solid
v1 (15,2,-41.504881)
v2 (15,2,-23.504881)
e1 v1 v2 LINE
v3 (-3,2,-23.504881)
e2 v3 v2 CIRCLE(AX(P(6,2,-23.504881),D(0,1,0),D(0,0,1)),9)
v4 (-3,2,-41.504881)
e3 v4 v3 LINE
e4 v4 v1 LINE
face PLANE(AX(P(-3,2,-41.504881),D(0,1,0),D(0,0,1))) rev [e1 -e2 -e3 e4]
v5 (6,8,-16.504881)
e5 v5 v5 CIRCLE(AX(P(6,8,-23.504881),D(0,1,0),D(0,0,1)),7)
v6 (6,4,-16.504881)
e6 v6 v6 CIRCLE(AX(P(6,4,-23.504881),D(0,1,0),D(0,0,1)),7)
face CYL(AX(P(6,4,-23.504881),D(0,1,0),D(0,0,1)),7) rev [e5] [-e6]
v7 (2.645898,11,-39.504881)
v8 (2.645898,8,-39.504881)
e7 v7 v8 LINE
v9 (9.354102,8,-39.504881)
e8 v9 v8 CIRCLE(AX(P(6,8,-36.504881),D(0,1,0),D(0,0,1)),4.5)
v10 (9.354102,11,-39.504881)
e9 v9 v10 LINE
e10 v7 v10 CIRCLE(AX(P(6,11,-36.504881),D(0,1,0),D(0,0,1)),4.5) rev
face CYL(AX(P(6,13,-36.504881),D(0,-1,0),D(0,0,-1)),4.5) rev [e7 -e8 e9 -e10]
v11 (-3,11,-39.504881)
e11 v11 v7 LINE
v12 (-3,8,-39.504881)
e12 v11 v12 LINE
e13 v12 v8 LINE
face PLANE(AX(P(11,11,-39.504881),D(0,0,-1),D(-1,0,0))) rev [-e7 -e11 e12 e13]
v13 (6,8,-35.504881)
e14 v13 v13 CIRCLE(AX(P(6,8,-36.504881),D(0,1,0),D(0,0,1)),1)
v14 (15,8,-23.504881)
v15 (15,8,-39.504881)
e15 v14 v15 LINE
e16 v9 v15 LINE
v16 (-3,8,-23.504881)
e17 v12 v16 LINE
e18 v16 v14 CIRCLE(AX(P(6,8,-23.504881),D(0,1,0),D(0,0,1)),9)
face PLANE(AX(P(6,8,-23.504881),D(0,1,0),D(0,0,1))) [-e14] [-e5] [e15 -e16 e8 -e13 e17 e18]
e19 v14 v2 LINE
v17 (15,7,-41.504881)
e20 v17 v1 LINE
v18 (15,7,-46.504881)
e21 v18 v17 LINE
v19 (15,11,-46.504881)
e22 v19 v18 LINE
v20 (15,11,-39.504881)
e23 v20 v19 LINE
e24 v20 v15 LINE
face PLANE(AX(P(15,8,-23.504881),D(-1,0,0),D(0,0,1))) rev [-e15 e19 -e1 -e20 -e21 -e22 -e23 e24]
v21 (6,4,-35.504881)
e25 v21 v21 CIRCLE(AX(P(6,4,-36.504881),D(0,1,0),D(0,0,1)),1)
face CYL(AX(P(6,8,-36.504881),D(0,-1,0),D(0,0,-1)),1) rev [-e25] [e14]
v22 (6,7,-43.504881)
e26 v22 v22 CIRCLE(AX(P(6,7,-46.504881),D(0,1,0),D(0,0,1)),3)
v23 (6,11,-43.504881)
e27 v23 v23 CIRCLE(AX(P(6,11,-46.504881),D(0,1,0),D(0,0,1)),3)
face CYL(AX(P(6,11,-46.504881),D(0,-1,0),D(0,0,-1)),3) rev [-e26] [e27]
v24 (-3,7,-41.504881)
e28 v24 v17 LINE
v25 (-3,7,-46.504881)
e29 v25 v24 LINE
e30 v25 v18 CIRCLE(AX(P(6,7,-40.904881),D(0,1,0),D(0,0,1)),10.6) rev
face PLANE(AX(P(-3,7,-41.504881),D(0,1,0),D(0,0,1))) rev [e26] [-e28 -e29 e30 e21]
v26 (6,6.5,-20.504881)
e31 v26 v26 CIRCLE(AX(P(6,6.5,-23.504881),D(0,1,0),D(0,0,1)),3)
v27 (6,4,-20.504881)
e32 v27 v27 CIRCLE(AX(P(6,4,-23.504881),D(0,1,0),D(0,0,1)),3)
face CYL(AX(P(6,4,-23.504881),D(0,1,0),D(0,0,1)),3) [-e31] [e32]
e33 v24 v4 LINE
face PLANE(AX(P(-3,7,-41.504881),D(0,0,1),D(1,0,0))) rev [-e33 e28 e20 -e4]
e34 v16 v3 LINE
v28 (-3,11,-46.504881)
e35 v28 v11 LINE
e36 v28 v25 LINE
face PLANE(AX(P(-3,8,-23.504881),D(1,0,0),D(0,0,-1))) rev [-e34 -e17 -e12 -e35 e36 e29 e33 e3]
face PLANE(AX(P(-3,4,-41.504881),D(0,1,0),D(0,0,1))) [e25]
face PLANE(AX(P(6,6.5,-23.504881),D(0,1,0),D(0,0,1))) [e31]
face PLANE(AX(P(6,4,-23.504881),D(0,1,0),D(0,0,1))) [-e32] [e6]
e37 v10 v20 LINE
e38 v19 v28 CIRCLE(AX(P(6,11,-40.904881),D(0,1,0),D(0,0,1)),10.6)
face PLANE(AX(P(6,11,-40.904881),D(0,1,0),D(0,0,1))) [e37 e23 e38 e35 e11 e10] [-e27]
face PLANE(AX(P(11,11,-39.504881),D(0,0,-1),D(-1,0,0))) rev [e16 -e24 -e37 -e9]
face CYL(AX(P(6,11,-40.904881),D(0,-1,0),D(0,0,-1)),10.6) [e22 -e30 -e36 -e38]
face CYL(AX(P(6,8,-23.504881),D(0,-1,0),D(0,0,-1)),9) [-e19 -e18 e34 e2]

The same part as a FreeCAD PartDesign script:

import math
import FreeCAD as App
import Part
import Sketcher

V = App.Vector
Q = App.Units.Quantity

doc = App.newDocument("Part")
body = doc.addObject("PartDesign::Body", "Body")

# Sketch on XZ plane
sketch1 = body.newObject("Sketcher::SketchObject", "Sketch")
sketch1.AttachmentSupport = (doc.getObject("XZ_Plane"), [""])
sketch1.MapMode = "FlatFace"
sketch1.addGeometry([
    Part.LineSegment(V(15, -53.5, 0), V(-3, -53.5, 0)),  # 0
    Part.LineSegment(V(-3, -53.5, 0), V(-3, -23.5, 0)),  # 1
    Part.ArcOfCircle(Part.Circle(V(6, -23.5, 0), V(0, 0, 1), 9), math.radians(0), math.radians(180)),  # 2
    Part.LineSegment(V(15, -23.5, 0), V(15, -53.5, 0)),  # 3
    Part.Circle(V(6, -36.5, 0), V(0, 0, 1), 1),  # 4
    Part.Circle(V(6, -46.5, 0), V(0, 0, 1), 1),  # 5
], False)
sketch1.addConstraint([
    Sketcher.Constraint("Coincident", 0, 2, 1, 1),
    Sketcher.Constraint("Tangent", 1, 2, 2, 2),
    Sketcher.Constraint("Tangent", 2, 1, 3, 1),
    Sketcher.Constraint("Coincident", 3, 2, 0, 1),
    Sketcher.Constraint("Horizontal", 0),
    Sketcher.Constraint("Vertical", 1),
    Sketcher.Constraint("Vertical", 3),
    Sketcher.Constraint("Equal", 4, 5),
    Sketcher.Constraint("Vertical", 2, 3, 4, 3),
    Sketcher.Constraint("Vertical", 4, 3, 5, 3),
    Sketcher.Constraint("Diameter", 4, Q("2 mm")),
    Sketcher.Constraint("Radius", 2, Q("9 mm")),
    Sketcher.Constraint("DistanceY", 1, 1, 1, 2, Q("30 mm")),
    Sketcher.Constraint("DistanceX", -1, 1, 2, 3, Q("6 mm")),
    Sketcher.Constraint("DistanceY", 4, 3, 2, 3, Q("13 mm")),
    Sketcher.Constraint("DistanceY", 5, 3, 4, 3, Q("10 mm")),
    Sketcher.Constraint("DistanceY", 2, 3, -1, 1, Q("23.504881 mm")),
])
pad1 = body.newObject("PartDesign::Pad", "Pad")
pad1.Profile = sketch1
pad1.Length = 8
pad1.Reversed = True

# Sketch on XZ plane
sketch2 = body.newObject("Sketcher::SketchObject", "Sketch001")
sketch2.AttachmentSupport = (doc.getObject("XZ_Plane"), [""])
sketch2.MapMode = "FlatFace"
sketch2.AttachmentOffset = App.Placement(V(0, 0, -8), App.Rotation())
sketch2.addGeometry([
    Part.Circle(V(6, -23.5, 0), V(0, 0, 1), 7),
    Part.Circle(V(6, -23.5, 0), V(0, 0, 1), 3),
], False)
sketch2.addConstraint([
    Sketcher.Constraint("Coincident", 1, 3, 0, 3),
    Sketcher.Constraint("Diameter", 0, Q("14 mm")),
    Sketcher.Constraint("Diameter", 1, Q("6 mm")),
    Sketcher.Constraint("DistanceX", -1, 1, 0, 3, Q("6 mm")),
    Sketcher.Constraint("DistanceY", 0, 3, -1, 1, Q("23.504881 mm")),
])
pocket1 = body.newObject("PartDesign::Pocket", "Pocket")
pocket1.Profile = sketch2
pocket1.Length = 4
pocket1.Reversed = True

# Sketch on XZ plane
sketch3 = body.newObject("Sketcher::SketchObject", "Sketch002")
sketch3.AttachmentSupport = (doc.getObject("XZ_Plane"), [""])
sketch3.MapMode = "FlatFace"
sketch3.AttachmentOffset = App.Placement(V(0, 0, -8), App.Rotation())
sketch3.addGeometry(Part.Circle(V(6, -23.5, 0), V(0, 0, 1), 3), False)
sketch3.addConstraint([
    Sketcher.Constraint("Diameter", 0, Q("6 mm")),
    Sketcher.Constraint("DistanceX", -1, 1, 0, 3, Q("6 mm")),
    Sketcher.Constraint("DistanceY", 0, 3, -1, 1, Q("23.504881 mm")),
])
pocket2 = body.newObject("PartDesign::Pocket", "Pocket001")
pocket2.Profile = sketch3
pocket2.Length = 1.5
pocket2.Reversed = True

# Sketch on XZ plane
sketch4 = body.newObject("Sketcher::SketchObject", "Sketch003")
sketch4.AttachmentSupport = (doc.getObject("XZ_Plane"), [""])
sketch4.MapMode = "FlatFace"
sketch4.AttachmentOffset = App.Placement(V(0, 0, -8), App.Rotation())
sketch4.addGeometry([
    Part.LineSegment(V(15, -39.5, 0), V(15, -46.5, 0)),  # 0
    Part.ArcOfCircle(Part.Circle(V(6, -40.9, 0), V(0, 0, 1), 10.6), math.radians(-148), math.radians(-32)),  # 1
    Part.LineSegment(V(-3, -46.5, 0), V(-3, -39.5, 0)),  # 2
    Part.LineSegment(V(-3, -39.5, 0), V(15, -39.5, 0)),  # 3
    Part.Circle(V(6, -46.5, 0), V(0, 0, 1), 3),  # 4
], False)
sketch4.addConstraint([
    Sketcher.Constraint("Coincident", 0, 2, 1, 2),
    Sketcher.Constraint("Coincident", 1, 1, 2, 1),
    Sketcher.Constraint("Coincident", 2, 2, 3, 1),
    Sketcher.Constraint("Coincident", 3, 2, 0, 1),
    Sketcher.Constraint("Vertical", 0),
    Sketcher.Constraint("Vertical", 2),
    Sketcher.Constraint("Horizontal", 3),
    Sketcher.Constraint("Horizontal", 4, 3, 0, 2),
    Sketcher.Constraint("Horizontal", 0, 2, 1, 1),
    Sketcher.Constraint("Vertical", 1, 3, 4, 3),
    Sketcher.Constraint("Diameter", 4, Q("6 mm")),
    Sketcher.Constraint("Radius", 1, Q("10.6 mm")),
    Sketcher.Constraint("DistanceX", 3, 1, 3, 2, Q("18 mm")),
    Sketcher.Constraint("DistanceY", 0, 2, 0, 1, Q("7 mm")),
    Sketcher.Constraint("DistanceX", -1, 1, 1, 3, Q("6 mm")),
    Sketcher.Constraint("DistanceY", 1, 3, -1, 1, Q("40.904881 mm")),
])
pad2 = body.newObject("PartDesign::Pad", "Pad001")
pad2.Profile = sketch4
pad2.Length = 3
pad2.Reversed = True

# Sketch on YZ plane
sketch5 = body.newObject("Sketcher::SketchObject", "Sketch004")
sketch5.AttachmentSupport = (doc.getObject("YZ_Plane"), [""])
sketch5.MapMode = "FlatFace"
sketch5.AttachmentOffset = App.Placement(V(0, 0, 15), App.Rotation())
sketch5.addGeometry([
    Part.LineSegment(V(7, -42, 0), V(0, -42, 0)),
    Part.LineSegment(V(0, -42, 0), V(0, -54, 0)),
    Part.LineSegment(V(0, -54, 0), V(7, -54, 0)),
    Part.LineSegment(V(7, -54, 0), V(7, -42, 0)),
], False)
sketch5.addConstraint([
    Sketcher.Constraint("Coincident", 0, 2, 1, 1),
    Sketcher.Constraint("Coincident", 1, 2, 2, 1),
    Sketcher.Constraint("Coincident", 2, 2, 3, 1),
    Sketcher.Constraint("Coincident", 3, 2, 0, 1),
    Sketcher.Constraint("Horizontal", 0),
    Sketcher.Constraint("Vertical", 1),
    Sketcher.Constraint("Horizontal", 2),
    Sketcher.Constraint("Vertical", 3),
    Sketcher.Constraint("PointOnObject", 0, 2, -2),
    Sketcher.Constraint("DistanceX", 0, 2, 0, 1, Q("7 mm")),
    Sketcher.Constraint("DistanceY", 1, 2, 1, 1, Q("12 mm")),
    Sketcher.Constraint("DistanceY", 0, 2, -1, 1, Q("41.504881 mm")),
])
pocket3 = body.newObject("PartDesign::Pocket", "Pocket002")
pocket3.Profile = sketch5
pocket3.Type = "ThroughAll"

# Sketch on XZ plane
sketch6 = body.newObject("Sketcher::SketchObject", "Sketch005")
sketch6.AttachmentSupport = (doc.getObject("XZ_Plane"), [""])
sketch6.MapMode = "FlatFace"
sketch6.AttachmentOffset = App.Placement(V(0, 0, -8), App.Rotation())
sketch6.addGeometry(Part.Circle(V(6, -36.5, 0), V(0, 0, 1), 4.5), False)
sketch6.addConstraint([
    Sketcher.Constraint("Diameter", 0, Q("9 mm")),
    Sketcher.Constraint("DistanceX", -1, 1, 0, 3, Q("6 mm")),
    Sketcher.Constraint("DistanceY", 0, 3, -1, 1, Q("36.504881 mm")),
])
pocket4 = body.newObject("PartDesign::Pocket", "Pocket003")
pocket4.Profile = sketch6
pocket4.Length = 5

# Sketch on XZ plane
sketch7 = body.newObject("Sketcher::SketchObject", "Sketch006")
sketch7.AttachmentSupport = (doc.getObject("XZ_Plane"), [""])
sketch7.MapMode = "FlatFace"
sketch7.AttachmentOffset = App.Placement(V(0, 0, -8), App.Rotation())
sketch7.addGeometry([
    Part.Circle(V(6, -46.5, 0), V(0, 0, 1), 3),  # 0
    Part.LineSegment(V(15, -53.5, 0), V(-3, -53.5, 0)),  # 1
    Part.LineSegment(V(-3, -53.5, 0), V(-3, -46.5, 0)),  # 2
    Part.ArcOfCircle(Part.Circle(V(6, -40.9, 0), V(0, 0, 1), 10.6), math.radians(-148), math.radians(-32)),  # 3
    Part.LineSegment(V(15, -46.5, 0), V(15, -53.5, 0)),  # 4
], False)
sketch7.addConstraint([
    Sketcher.Constraint("Coincident", 1, 2, 2, 1),
    Sketcher.Constraint("Coincident", 2, 2, 3, 1),
    Sketcher.Constraint("Coincident", 3, 2, 4, 1),
    Sketcher.Constraint("Coincident", 4, 2, 1, 1),
    Sketcher.Constraint("Horizontal", 1),
    Sketcher.Constraint("Vertical", 2),
    Sketcher.Constraint("Vertical", 4),
    Sketcher.Constraint("Horizontal", 0, 3, 2, 2),
    Sketcher.Constraint("Horizontal", 2, 2, 3, 2),
    Sketcher.Constraint("Vertical", 0, 3, 3, 3),
    Sketcher.Constraint("Diameter", 0, Q("6 mm")),
    Sketcher.Constraint("Radius", 3, Q("10.6 mm")),
    Sketcher.Constraint("DistanceX", 1, 2, 1, 1, Q("18 mm")),
    Sketcher.Constraint("DistanceY", 2, 1, 2, 2, Q("7 mm")),
    Sketcher.Constraint("DistanceX", -1, 1, 0, 3, Q("6 mm")),
    Sketcher.Constraint("DistanceY", 0, 3, -1, 1, Q("46.504881 mm")),
])
pocket5 = body.newObject("PartDesign::Pocket", "Pocket004")
pocket5.Profile = sketch7
pocket5.Length = 5
pocket5.Reversed = True

# Sketch on YZ plane
sketch8 = body.newObject("Sketcher::SketchObject", "Sketch007")
sketch8.AttachmentSupport = (doc.getObject("YZ_Plane"), [""])
sketch8.MapMode = "FlatFace"
sketch8.AttachmentOffset = App.Placement(V(0, 0, 15), App.Rotation())
sketch8.addGeometry([
    Part.LineSegment(V(2, -13.3, 0), V(0, -13.3, 0)),
    Part.LineSegment(V(0, -13.3, 0), V(0, -41.5, 0)),
    Part.LineSegment(V(0, -41.5, 0), V(2, -41.5, 0)),
    Part.LineSegment(V(2, -41.5, 0), V(2, -13.3, 0)),
], False)
sketch8.addConstraint([
    Sketcher.Constraint("Coincident", 0, 2, 1, 1),
    Sketcher.Constraint("Coincident", 1, 2, 2, 1),
    Sketcher.Constraint("Coincident", 2, 2, 3, 1),
    Sketcher.Constraint("Coincident", 3, 2, 0, 1),
    Sketcher.Constraint("Horizontal", 0),
    Sketcher.Constraint("Vertical", 1),
    Sketcher.Constraint("Horizontal", 2),
    Sketcher.Constraint("Vertical", 3),
    Sketcher.Constraint("PointOnObject", 0, 2, -2),
    Sketcher.Constraint("DistanceX", 0, 2, 0, 1, Q("2 mm")),
    Sketcher.Constraint("DistanceY", 1, 2, 1, 1, Q("28.183943 mm")),
    Sketcher.Constraint("DistanceY", 1, 2, -1, 1, Q("41.504881 mm")),
])
pocket6 = body.newObject("PartDesign::Pocket", "Pocket005")
pocket6.Profile = sketch8
pocket6.Type = "ThroughAll"

# Sketch on YZ plane
sketch9 = body.newObject("Sketcher::SketchObject", "Sketch008")
sketch9.AttachmentSupport = (doc.getObject("YZ_Plane"), [""])
sketch9.MapMode = "FlatFace"
sketch9.AttachmentOffset = App.Placement(V(0, 0, 15), App.Rotation())
sketch9.addGeometry([
    Part.LineSegment(V(4, -33.2, 0), V(2, -33.2, 0)),
    Part.LineSegment(V(2, -33.2, 0), V(2, -41.5, 0)),
    Part.LineSegment(V(2, -41.5, 0), V(4, -41.5, 0)),
    Part.LineSegment(V(4, -41.5, 0), V(4, -33.2, 0)),
], False)
sketch9.addConstraint([
    Sketcher.Constraint("Coincident", 0, 2, 1, 1),
    Sketcher.Constraint("Coincident", 1, 2, 2, 1),
    Sketcher.Constraint("Coincident", 2, 2, 3, 1),
    Sketcher.Constraint("Coincident", 3, 2, 0, 1),
    Sketcher.Constraint("Horizontal", 0),
    Sketcher.Constraint("Vertical", 1),
    Sketcher.Constraint("Horizontal", 2),
    Sketcher.Constraint("Vertical", 3),
    Sketcher.Constraint("DistanceX", 0, 2, 0, 1, Q("2 mm")),
    Sketcher.Constraint("DistanceX", -1, 1, 0, 2, Q("2 mm")),
    Sketcher.Constraint("DistanceY", 1, 2, 1, 1, Q("8.331719 mm")),
    Sketcher.Constraint("DistanceY", 0, 2, -1, 1, Q("33.173162 mm")),
])
pad3 = body.newObject("PartDesign::Pad", "Pad002")
pad3.Profile = sketch9
pad3.Type = "UpToFirst"
pad3.Reversed = True

doc.recompute()
